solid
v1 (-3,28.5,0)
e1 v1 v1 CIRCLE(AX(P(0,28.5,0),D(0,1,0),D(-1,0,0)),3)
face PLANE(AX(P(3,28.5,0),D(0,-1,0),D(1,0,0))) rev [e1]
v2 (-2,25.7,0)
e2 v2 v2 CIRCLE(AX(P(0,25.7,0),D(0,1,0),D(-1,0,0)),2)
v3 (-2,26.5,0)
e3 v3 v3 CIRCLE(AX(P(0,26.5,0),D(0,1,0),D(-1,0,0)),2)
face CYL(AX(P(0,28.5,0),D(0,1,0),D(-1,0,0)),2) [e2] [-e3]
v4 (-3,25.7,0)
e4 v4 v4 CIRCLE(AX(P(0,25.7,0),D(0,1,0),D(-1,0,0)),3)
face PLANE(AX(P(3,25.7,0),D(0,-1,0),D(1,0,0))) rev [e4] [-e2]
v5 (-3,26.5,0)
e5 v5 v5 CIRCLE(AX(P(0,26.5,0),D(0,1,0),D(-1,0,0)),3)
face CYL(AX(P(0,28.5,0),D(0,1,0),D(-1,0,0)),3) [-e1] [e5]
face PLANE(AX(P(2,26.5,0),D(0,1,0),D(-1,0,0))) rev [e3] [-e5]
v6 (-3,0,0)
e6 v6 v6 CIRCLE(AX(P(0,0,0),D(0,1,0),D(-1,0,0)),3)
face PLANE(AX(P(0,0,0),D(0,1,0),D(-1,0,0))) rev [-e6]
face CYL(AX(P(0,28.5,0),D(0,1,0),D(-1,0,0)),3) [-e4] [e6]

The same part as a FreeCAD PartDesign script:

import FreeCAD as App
import Part
import Sketcher
from FreeCAD import Vector

doc = App.newDocument("Part")
params = doc.addObject("Spreadsheet::Sheet", "Params")
for row, (alias, value) in enumerate([
    ("sketch1_width", "1 mm"),
    ("sketch1_width2", "3 mm"),
    ("sketch1_height", "2 mm"),
    ("sketch1_height2", "25.7 mm"),
    ("sketch1_height3", "0.8 mm"),
    ("revolution_angle", "360 deg"),
], start=1):
    params.set(f"A{row}", alias)
    params.set(f"B{row}", "=" + value)
    params.setAlias(f"B{row}", alias)

body = doc.addObject("PartDesign::Body", "Body")

# Sketch on XY plane
sketch1 = body.newObject("Sketcher::SketchObject", "Sketch")
sketch1.AttachmentSupport = (doc.getObject("XY_Plane"), [""])
sketch1.MapMode = "FlatFace"
sketch1.addGeometry([
    Part.LineSegment(Vector(3, 0, 0), Vector(3, 25.7, 0)),  # 0
    Part.LineSegment(Vector(3, 25.7, 0), Vector(2, 25.7, 0)),  # 1
    Part.LineSegment(Vector(2, 25.7, 0), Vector(2, 26.5, 0)),  # 2
    Part.LineSegment(Vector(2, 26.5, 0), Vector(3, 26.5, 0)),  # 3
    Part.LineSegment(Vector(3, 26.5, 0), Vector(3, 28.5, 0)),  # 4
    Part.LineSegment(Vector(3, 28.5, 0), Vector(0, 28.5, 0)),  # 5
    Part.LineSegment(Vector(0, 28.5, 0), Vector(0, 0, 0)),  # 6
    Part.LineSegment(Vector(0, 0, 0), Vector(3, 0, 0)),  # 7
], False)
sketch1.addConstraint([
    Sketcher.Constraint("Coincident", 0, 2, 1, 1),
    Sketcher.Constraint("Coincident", 1, 2, 2, 1),
    Sketcher.Constraint("Coincident", 2, 2, 3, 1),
    Sketcher.Constraint("Coincident", 3, 2, 4, 1),
    Sketcher.Constraint("Coincident", 4, 2, 5, 1),
    Sketcher.Constraint("Coincident", 5, 2, 6, 1),
    Sketcher.Constraint("Coincident", 6, 2, 7, 1),
    Sketcher.Constraint("Coincident", 7, 2, 0, 1),
    Sketcher.Constraint("Vertical", 0),
    Sketcher.Constraint("Horizontal", 1),
    Sketcher.Constraint("Vertical", 2),
    Sketcher.Constraint("Horizontal", 3),
    Sketcher.Constraint("Vertical", 4),
    Sketcher.Constraint("Horizontal", 5),
    Sketcher.Constraint("Vertical", 6),
    Sketcher.Constraint("Horizontal", 7),
    Sketcher.Constraint("Coincident", 6, 2, -1, 1),
    Sketcher.Constraint("Vertical", 0, 2, 3, 2),
    Sketcher.Constraint("DistanceX", 1, 2, 1, 1, 1.0),
    Sketcher.Constraint("DistanceX", 5, 2, 5, 1, 3.0),
    Sketcher.Constraint("DistanceY", 4, 1, 4, 2, 2.0),
    Sketcher.Constraint("DistanceY", 0, 1, 0, 2, 25.7),
    Sketcher.Constraint("DistanceY", 2, 1, 2, 2, 0.8),
])
sketch1.setExpression("Constraints[18]", "Params.sketch1_width")
sketch1.setExpression("Constraints[19]", "Params.sketch1_width2")
sketch1.setExpression("Constraints[20]", "Params.sketch1_height")
sketch1.setExpression("Constraints[21]", "Params.sketch1_height2")
sketch1.setExpression("Constraints[22]", "Params.sketch1_height3")
revolution = body.newObject("PartDesign::Revolution", "Revolution")
revolution.Profile = sketch1
revolution.ReferenceAxis = (sketch1, ["V_Axis"])
revolution.setExpression("Angle", "Params.revolution_angle")

doc.recompute()
